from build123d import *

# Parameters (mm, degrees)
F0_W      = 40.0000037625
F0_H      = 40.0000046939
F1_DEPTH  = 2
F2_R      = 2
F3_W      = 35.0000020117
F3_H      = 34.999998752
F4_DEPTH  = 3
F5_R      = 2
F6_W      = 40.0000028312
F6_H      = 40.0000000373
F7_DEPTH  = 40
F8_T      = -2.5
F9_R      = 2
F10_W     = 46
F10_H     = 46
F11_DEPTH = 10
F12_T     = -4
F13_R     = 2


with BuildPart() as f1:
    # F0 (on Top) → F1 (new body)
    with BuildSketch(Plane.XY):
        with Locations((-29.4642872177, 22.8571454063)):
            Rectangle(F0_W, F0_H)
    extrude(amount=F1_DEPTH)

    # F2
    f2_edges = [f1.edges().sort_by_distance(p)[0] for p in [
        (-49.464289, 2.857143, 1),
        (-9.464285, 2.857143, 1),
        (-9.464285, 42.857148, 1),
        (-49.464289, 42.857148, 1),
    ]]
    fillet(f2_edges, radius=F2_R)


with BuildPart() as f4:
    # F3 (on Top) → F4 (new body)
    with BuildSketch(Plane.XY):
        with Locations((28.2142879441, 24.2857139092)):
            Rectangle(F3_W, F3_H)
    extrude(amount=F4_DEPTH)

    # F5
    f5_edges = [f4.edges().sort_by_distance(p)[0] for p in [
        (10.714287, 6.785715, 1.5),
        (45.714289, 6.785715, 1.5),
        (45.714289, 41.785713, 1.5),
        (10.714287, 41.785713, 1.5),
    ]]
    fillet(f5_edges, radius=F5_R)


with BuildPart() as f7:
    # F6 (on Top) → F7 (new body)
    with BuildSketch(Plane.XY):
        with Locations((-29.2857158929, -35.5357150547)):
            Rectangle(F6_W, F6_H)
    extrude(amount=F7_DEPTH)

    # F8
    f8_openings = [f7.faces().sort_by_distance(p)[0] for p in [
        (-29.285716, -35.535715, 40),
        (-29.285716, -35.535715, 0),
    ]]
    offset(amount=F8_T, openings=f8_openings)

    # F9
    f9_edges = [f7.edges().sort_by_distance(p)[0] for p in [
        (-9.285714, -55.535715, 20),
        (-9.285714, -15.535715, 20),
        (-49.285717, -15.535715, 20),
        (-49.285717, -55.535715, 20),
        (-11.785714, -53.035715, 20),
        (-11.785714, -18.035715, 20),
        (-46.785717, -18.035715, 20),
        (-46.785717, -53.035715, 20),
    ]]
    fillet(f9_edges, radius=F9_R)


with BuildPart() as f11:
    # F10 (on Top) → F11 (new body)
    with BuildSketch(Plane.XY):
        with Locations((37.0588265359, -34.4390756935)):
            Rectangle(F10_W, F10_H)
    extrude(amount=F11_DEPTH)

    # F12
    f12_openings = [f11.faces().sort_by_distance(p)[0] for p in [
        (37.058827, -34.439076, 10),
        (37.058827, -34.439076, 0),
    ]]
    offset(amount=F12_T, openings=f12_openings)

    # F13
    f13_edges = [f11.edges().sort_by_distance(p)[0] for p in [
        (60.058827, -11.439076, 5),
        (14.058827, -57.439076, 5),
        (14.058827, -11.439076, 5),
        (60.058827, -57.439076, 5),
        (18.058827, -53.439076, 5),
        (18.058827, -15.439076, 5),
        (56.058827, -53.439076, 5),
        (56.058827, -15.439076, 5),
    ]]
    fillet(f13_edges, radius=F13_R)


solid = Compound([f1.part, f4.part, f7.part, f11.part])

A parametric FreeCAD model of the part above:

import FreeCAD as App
import Part
import Sketcher
from FreeCAD import Vector
Q = App.Units.Quantity


def edges_at(feature, points):
    """Names of the edges that pass closest to the given points."""
    edges = feature.Shape.Edges
    near = lambda p: min(range(len(edges)), key=lambda i: edges[i].distToShape(Part.Vertex(*p))[0])
    return sorted({f"Edge{near(p) + 1}" for p in points})


def faces_at(feature, points):
    """Names of the faces that lie closest to the given points."""
    faces = feature.Shape.Faces
    near = lambda p: min(range(len(faces)), key=lambda i: faces[i].distToShape(Part.Vertex(*p))[0])
    return sorted({f"Face{near(p) + 1}" for p in points})


def add_polygon(sketch, points):
    """Adds a closed chain of lines whose ends are joined by coincident constraints."""
    first, n = sketch.GeometryCount, len(points)
    for a, b in zip(points, points[1:] + points[:1]):
        sketch.addGeometry(Part.LineSegment(App.Vector(*a, 0), App.Vector(*b, 0)), False)
    for i in range(n):
        sketch.addConstraint(Sketcher.Constraint("Coincident", first + i, 2, first + (i + 1) % n, 1))

doc = App.newDocument("Part")
body = doc.addObject("PartDesign::Body", "Body")

sketch1 = body.newObject("Sketcher::SketchObject", "Sketch")
sketch1.AttachmentSupport = (doc.getObject("XY_Plane"), [""])
sketch1.MapMode = "FlatFace"
add_polygon(sketch1, [(-49, 43), (-49, 3), (-9, 3), (-9, 43)])
sketch1.addConstraint([
    Sketcher.Constraint("Vertical", 0),
    Sketcher.Constraint("Horizontal", 1),
    Sketcher.Constraint("Vertical", 2),
    Sketcher.Constraint("Horizontal", 3),
    Sketcher.Constraint("Equal", 3, 0),
    Sketcher.Constraint("DistanceX", 1, 1, 1, 2, Q("40.000004 mm")),
    Sketcher.Constraint("DistanceX", 0, 2, -1, 1, Q("49.464289 mm")),
    Sketcher.Constraint("DistanceY", -1, 1, 0, 2, Q("2.857143 mm")),
])
pad1 = body.newObject("PartDesign::Pad", "Pad")
pad1.Profile = sketch1
pad1.Length = 2
doc.recompute()

fillet = body.newObject("PartDesign::Fillet", "Fillet")
fillet.Base = (pad1, edges_at(pad1, [
    (-49.464, 2.857, 1),
    (-9.464, 2.857, 1),
    (-9.464, 42.857, 1),
    (-49.464, 42.857, 1),
]))
fillet.Radius = 2
body2 = doc.addObject("PartDesign::Body", "Body001")

sketch2 = body2.newObject("Sketcher::SketchObject", "Sketch001")
sketch2.AttachmentSupport = (doc.getObject("XY_Plane001"), [""])
sketch2.MapMode = "FlatFace"
add_polygon(sketch2, [(11, 42), (11, 7), (46, 7), (46, 42)])
sketch2.addConstraint([
    Sketcher.Constraint("Vertical", 0),
    Sketcher.Constraint("Horizontal", 1),
    Sketcher.Constraint("Vertical", 2),
    Sketcher.Constraint("Horizontal", 3),
    Sketcher.Constraint("DistanceY", 0, 2, 0, 1, Q("34.999999 mm")),
    Sketcher.Constraint("DistanceX", 1, 1, 1, 2, Q("35.000002 mm")),
    Sketcher.Constraint("DistanceX", -1, 1, 1, 2, Q("45.714289 mm")),
    Sketcher.Constraint("DistanceY", -1, 1, 0, 2, Q("6.785715 mm")),
])
pad2 = body2.newObject("PartDesign::Pad", "Pad001")
pad2.Profile = sketch2
pad2.Length = 3
doc.recompute()

fillet2 = body2.newObject("PartDesign::Fillet", "Fillet001")
fillet2.Base = (pad2, edges_at(pad2, [
    (10.714, 6.786, 1.5),
    (45.714, 6.786, 1.5),
    (45.714, 41.786, 1.5),
    (10.714, 41.786, 1.5),
]))
fillet2.Radius = 2
body3 = doc.addObject("PartDesign::Body", "Body002")

sketch3 = body3.newObject("Sketcher::SketchObject", "Sketch002")
sketch3.AttachmentSupport = (doc.getObject("XY_Plane002"), [""])
sketch3.MapMode = "FlatFace"
add_polygon(sketch3, [(-49, -16), (-49, -56), (-9, -56), (-9, -16)])
sketch3.addConstraint([
    Sketcher.Constraint("Vertical", 0),
    Sketcher.Constraint("Horizontal", 1),
    Sketcher.Constraint("Vertical", 2),
    Sketcher.Constraint("Horizontal", 3),
    Sketcher.Constraint("DistanceY", 0, 2, 0, 1, Q("40 mm")),
    Sketcher.Constraint("DistanceX", 1, 1, 1, 2, Q("40.000003 mm")),
    Sketcher.Constraint("DistanceX", 0, 2, -1, 1, Q("49.285717 mm")),
    Sketcher.Constraint("DistanceY", 0, 2, -1, 1, Q("55.535715 mm")),
])
pad3 = body3.newObject("PartDesign::Pad", "Pad002")
pad3.Profile = sketch3
pad3.Length = 40
doc.recompute()

thickness = body3.newObject("PartDesign::Thickness", "Thickness")
thickness.Base = (pad3, faces_at(pad3, [(-29.286, -35.536, 40), (-29.286, -35.536, 0)]))
thickness.Value = 2.5
thickness.Reversed = True
thickness.Join = "Arc"
doc.recompute()

fillet3 = body3.newObject("PartDesign::Fillet", "Fillet002")
fillet3.Base = (thickness, edges_at(thickness, [
    (-9.286, -55.536, 20),
    (-9.286, -15.536, 20),
    (-49.286, -15.536, 20),
    (-49.286, -55.536, 20),
    (-11.786, -53.036, 20),
    (-11.786, -18.036, 20),
    (-46.786, -18.036, 20),
    (-46.786, -53.036, 20),
]))
fillet3.Radius = 2
body4 = doc.addObject("PartDesign::Body", "Body003")

sketch4 = body4.newObject("Sketcher::SketchObject", "Sketch003")
sketch4.AttachmentSupport = (doc.getObject("XY_Plane003"), [""])
sketch4.MapMode = "FlatFace"
add_polygon(sketch4, [(14, -11), (14, -57), (60, -57), (60, -11)])
sketch4.addConstraint([
    Sketcher.Constraint("Vertical", 0),
    Sketcher.Constraint("Horizontal", 1),
    Sketcher.Constraint("Vertical", 2),
    Sketcher.Constraint("Horizontal", 3),
    Sketcher.Constraint("Equal", 3, 0),
    Sketcher.Constraint("DistanceX", 1, 1, 1, 2, Q("46 mm")),
    Sketcher.Constraint("DistanceX", -1, 1, 0, 2, Q("14.058827 mm")),
    Sketcher.Constraint("DistanceY", 0, 2, -1, 1, Q("57.439076 mm")),
])
pad4 = body4.newObject("PartDesign::Pad", "Pad003")
pad4.Profile = sketch4
pad4.Length = 10
doc.recompute()

thickness2 = body4.newObject("PartDesign::Thickness", "Thickness001")
thickness2.Base = (pad4, faces_at(pad4, [(37.059, -34.439, 10), (37.059, -34.439, 0)]))
thickness2.Value = 4
thickness2.Reversed = True
thickness2.Join = "Arc"
doc.recompute()

fillet4 = body4.newObject("PartDesign::Fillet", "Fillet003")
fillet4.Base = (thickness2, edges_at(thickness2, [
    (60.059, -11.439, 5),
    (14.059, -57.439, 5),
    (14.059, -11.439, 5),
    (60.059, -57.439, 5),
    (18.059, -53.439, 5),
    (18.059, -15.439, 5),
    (56.059, -53.439, 5),
    (56.059, -15.439, 5),
]))
fillet4.Radius = 2

doc.recompute()
